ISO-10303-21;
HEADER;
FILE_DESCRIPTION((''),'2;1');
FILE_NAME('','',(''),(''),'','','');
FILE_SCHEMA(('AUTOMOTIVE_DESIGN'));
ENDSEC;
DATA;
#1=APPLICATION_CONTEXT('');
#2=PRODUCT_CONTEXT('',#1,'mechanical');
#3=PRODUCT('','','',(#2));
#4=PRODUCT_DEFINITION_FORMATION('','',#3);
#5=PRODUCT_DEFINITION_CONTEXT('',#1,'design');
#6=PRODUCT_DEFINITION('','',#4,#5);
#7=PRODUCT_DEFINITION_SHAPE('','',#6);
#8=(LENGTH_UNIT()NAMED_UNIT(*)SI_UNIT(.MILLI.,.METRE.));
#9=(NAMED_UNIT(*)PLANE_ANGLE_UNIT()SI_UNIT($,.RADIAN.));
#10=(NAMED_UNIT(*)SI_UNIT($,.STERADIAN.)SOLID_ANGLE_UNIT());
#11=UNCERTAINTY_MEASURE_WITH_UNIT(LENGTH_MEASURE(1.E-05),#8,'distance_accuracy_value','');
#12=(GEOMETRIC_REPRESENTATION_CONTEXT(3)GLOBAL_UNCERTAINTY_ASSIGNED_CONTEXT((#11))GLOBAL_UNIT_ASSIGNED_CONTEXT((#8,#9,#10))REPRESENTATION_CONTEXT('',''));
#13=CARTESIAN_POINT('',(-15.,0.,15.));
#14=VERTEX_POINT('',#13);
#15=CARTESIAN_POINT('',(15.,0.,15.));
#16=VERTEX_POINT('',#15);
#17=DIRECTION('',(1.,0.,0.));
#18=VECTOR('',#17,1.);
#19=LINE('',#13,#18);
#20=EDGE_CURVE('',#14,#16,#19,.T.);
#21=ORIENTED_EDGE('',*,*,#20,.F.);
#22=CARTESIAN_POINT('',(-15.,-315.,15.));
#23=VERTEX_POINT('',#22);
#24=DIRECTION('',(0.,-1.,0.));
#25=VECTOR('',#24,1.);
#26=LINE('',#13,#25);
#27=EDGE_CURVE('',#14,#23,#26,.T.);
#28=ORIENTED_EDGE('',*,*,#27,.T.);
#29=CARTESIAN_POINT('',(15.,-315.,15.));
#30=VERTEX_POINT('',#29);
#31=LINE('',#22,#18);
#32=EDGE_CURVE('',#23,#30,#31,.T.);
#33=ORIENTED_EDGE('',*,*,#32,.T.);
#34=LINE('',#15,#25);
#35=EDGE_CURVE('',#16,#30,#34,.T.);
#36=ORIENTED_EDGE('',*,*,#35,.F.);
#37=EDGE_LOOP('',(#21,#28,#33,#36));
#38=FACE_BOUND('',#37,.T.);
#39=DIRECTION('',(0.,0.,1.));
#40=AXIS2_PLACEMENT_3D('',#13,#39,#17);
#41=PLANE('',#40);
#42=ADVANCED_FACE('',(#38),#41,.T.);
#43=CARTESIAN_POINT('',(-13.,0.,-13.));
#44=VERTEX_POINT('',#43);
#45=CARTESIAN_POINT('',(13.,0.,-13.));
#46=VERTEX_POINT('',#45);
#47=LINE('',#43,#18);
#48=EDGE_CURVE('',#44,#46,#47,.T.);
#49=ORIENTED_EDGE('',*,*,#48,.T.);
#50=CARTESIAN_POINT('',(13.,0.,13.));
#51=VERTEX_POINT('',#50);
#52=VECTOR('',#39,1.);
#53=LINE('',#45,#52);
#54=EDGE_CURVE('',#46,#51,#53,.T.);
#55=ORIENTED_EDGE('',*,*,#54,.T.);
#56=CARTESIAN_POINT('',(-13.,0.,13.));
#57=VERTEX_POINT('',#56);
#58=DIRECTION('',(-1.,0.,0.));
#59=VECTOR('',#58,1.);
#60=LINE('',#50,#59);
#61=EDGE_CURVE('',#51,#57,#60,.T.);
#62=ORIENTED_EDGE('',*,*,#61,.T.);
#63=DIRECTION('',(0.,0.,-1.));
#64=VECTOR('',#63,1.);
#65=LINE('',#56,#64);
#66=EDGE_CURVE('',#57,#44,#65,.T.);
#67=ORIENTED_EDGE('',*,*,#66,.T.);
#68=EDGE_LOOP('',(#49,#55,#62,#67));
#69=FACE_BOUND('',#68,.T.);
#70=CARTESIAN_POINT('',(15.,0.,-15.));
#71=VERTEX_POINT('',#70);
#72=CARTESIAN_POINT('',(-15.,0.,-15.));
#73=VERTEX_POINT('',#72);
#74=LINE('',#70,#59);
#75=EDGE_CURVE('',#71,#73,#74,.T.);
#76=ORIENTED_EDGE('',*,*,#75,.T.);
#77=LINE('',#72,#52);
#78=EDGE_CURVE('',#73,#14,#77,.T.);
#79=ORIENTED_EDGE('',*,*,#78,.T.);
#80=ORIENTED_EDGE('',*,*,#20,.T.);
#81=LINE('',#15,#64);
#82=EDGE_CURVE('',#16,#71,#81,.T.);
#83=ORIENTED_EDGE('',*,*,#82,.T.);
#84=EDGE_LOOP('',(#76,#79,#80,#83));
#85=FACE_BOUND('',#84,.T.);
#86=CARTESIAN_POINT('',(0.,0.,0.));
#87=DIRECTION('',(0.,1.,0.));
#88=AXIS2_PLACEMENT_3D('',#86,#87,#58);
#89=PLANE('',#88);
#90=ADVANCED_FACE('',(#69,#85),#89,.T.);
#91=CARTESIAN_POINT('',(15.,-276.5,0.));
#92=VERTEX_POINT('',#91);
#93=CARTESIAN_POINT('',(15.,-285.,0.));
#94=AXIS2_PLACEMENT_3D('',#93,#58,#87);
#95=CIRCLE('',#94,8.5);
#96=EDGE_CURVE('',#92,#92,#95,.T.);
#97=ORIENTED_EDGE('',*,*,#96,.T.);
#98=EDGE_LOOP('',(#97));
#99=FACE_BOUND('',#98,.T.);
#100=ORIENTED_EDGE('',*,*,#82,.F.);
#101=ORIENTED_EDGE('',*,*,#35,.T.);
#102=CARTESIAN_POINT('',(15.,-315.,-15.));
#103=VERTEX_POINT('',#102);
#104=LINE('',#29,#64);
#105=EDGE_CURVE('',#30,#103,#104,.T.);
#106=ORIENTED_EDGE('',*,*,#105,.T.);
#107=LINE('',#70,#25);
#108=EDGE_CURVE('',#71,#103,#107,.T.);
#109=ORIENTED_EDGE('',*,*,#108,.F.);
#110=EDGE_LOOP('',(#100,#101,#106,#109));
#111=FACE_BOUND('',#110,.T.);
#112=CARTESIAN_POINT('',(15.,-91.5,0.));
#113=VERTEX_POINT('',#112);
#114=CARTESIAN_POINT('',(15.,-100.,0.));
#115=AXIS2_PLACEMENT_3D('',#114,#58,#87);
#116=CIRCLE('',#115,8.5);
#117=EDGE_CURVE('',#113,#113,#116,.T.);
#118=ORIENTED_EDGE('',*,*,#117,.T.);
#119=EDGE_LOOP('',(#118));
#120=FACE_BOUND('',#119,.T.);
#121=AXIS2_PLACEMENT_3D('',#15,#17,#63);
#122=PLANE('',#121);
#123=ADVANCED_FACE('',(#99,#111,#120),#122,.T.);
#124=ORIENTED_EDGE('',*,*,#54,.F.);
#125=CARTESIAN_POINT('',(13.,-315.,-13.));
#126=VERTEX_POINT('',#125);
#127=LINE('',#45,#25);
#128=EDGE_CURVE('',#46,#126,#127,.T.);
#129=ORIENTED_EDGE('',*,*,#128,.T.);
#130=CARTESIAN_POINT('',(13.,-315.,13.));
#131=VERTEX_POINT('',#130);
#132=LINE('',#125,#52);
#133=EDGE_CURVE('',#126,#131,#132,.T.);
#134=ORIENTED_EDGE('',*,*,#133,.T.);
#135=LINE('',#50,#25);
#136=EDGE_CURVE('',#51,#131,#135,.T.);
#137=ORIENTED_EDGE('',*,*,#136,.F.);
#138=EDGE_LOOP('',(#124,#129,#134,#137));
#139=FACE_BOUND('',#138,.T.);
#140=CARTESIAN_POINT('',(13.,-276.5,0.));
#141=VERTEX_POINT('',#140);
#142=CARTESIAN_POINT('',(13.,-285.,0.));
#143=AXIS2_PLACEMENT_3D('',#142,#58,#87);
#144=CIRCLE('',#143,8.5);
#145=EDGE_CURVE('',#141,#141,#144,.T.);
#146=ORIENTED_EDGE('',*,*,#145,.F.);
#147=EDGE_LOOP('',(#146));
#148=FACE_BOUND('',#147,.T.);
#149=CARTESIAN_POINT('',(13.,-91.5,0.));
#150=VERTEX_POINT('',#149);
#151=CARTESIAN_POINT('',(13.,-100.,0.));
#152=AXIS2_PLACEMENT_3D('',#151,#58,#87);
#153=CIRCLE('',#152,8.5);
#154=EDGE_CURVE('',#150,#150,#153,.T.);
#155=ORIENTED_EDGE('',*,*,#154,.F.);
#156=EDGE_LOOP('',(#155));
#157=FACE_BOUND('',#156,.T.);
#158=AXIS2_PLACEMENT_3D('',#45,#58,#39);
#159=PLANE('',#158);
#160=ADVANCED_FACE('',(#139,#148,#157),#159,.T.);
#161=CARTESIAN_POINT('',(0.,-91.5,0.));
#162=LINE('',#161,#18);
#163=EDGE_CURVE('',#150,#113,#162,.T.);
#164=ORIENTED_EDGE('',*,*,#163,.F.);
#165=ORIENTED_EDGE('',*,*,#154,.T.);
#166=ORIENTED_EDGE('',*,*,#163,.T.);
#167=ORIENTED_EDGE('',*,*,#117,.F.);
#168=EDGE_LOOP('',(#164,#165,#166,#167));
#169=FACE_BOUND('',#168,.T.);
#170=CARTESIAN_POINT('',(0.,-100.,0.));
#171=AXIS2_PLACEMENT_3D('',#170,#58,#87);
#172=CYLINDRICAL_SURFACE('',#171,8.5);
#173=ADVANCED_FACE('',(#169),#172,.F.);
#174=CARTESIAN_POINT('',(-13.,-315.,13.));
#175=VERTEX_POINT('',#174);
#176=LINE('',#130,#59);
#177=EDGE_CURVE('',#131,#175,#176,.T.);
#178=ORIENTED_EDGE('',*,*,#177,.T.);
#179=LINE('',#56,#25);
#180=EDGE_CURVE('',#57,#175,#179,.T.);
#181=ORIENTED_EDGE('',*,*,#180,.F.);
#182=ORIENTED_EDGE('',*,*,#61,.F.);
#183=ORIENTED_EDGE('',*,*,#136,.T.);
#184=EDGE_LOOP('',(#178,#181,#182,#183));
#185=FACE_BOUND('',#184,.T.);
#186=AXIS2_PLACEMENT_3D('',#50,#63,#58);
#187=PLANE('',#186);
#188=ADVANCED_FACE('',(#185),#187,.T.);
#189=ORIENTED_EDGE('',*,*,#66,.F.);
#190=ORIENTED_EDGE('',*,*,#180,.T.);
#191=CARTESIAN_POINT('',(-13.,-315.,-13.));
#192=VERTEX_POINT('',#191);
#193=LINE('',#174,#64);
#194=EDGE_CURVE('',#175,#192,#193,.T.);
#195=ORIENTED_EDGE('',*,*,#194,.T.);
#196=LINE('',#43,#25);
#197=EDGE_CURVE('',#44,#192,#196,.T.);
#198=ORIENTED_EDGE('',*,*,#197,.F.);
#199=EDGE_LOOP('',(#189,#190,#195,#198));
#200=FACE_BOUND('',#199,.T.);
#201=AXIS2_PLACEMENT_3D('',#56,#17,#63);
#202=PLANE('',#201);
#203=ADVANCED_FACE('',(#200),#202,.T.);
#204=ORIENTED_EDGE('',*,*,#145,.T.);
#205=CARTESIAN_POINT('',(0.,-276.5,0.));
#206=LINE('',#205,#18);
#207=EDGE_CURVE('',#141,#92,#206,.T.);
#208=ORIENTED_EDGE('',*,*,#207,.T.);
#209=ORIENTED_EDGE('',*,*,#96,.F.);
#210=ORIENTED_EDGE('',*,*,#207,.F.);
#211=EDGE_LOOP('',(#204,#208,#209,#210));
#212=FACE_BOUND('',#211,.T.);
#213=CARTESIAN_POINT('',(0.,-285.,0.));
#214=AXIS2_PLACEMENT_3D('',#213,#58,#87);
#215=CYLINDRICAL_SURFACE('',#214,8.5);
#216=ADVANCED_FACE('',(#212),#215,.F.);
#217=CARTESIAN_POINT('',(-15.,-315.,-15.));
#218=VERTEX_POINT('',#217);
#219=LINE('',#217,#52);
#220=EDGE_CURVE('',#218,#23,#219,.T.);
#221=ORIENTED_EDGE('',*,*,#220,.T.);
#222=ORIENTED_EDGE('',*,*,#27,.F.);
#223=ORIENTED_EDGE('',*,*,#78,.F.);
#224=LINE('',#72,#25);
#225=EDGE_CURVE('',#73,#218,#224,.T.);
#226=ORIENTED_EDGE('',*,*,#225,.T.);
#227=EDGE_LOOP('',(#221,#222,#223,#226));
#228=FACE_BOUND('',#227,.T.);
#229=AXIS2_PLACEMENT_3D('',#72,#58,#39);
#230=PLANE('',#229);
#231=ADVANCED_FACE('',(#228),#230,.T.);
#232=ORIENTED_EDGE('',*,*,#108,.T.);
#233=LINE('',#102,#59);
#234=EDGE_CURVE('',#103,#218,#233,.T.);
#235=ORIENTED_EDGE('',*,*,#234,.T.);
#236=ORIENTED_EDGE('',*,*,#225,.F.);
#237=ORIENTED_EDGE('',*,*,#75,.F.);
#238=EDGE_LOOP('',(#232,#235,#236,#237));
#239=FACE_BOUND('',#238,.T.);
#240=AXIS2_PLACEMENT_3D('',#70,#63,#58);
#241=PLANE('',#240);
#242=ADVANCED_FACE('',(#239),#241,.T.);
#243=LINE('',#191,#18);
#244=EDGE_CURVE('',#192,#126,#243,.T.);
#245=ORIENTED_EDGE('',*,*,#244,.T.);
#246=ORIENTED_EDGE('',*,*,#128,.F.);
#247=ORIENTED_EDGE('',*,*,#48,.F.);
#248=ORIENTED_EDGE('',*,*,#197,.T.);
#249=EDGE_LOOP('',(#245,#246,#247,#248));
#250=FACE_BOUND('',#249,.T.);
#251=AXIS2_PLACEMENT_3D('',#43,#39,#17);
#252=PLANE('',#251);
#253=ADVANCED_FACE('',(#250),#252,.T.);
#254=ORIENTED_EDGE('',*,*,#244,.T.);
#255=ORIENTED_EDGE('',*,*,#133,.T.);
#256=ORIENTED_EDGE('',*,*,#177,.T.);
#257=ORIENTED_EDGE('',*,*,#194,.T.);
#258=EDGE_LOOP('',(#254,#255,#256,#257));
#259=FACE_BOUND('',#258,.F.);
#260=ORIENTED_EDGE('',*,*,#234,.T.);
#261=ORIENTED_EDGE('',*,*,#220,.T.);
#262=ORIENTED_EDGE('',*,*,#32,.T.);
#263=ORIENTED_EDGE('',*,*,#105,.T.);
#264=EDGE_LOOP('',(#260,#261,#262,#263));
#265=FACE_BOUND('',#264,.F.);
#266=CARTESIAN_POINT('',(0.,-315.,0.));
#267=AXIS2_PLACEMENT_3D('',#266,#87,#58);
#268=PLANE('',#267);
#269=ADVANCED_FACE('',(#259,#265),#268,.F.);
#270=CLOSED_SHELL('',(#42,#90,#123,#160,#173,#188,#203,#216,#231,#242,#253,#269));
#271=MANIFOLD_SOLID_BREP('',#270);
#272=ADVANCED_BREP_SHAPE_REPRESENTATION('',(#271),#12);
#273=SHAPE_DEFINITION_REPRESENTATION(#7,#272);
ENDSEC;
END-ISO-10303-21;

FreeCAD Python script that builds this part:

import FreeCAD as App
import Part
import Sketcher
Q = App.Units.Quantity


def add_polygon(sketch, points):
    """Adds a closed chain of lines whose ends are joined by coincident constraints."""
    first, n = sketch.GeometryCount, len(points)
    for a, b in zip(points, points[1:] + points[:1]):
        sketch.addGeometry(Part.LineSegment(App.Vector(*a, 0), App.Vector(*b, 0)), False)
    for i in range(n):
        sketch.addConstraint(Sketcher.Constraint("Coincident", first + i, 2, first + (i + 1) % n, 1))

doc = App.newDocument("Part")
body = doc.addObject("PartDesign::Body", "Body")

sketch1 = body.newObject("Sketcher::SketchObject", "Sketch")
sketch1.AttachmentSupport = (doc.getObject("XZ_Plane"), [""])
sketch1.MapMode = "FlatFace"
add_polygon(sketch1, [(-15, -15), (-15, 15), (15, 15), (15, -15)])
add_polygon(sketch1, [(13, -13), (13, 13), (-13, 13), (-13, -13)])
sketch1.addConstraint([
    Sketcher.Constraint("Vertical", 0),
    Sketcher.Constraint("Horizontal", 1),
    Sketcher.Constraint("Vertical", 2),
    Sketcher.Constraint("Horizontal", 3),
    Sketcher.Constraint("Vertical", 4),
    Sketcher.Constraint("Horizontal", 5),
    Sketcher.Constraint("Vertical", 6),
    Sketcher.Constraint("Horizontal", 7),
    Sketcher.Constraint("Symmetric", 0, 2, 2, 2, -1, 1),
    Sketcher.Constraint("Symmetric", 4, 2, 6, 2, -1, 1),
    Sketcher.Constraint("Equal", 3, 0),
    Sketcher.Constraint("Equal", 7, 4),
    Sketcher.Constraint("DistanceX", 1, 1, 1, 2, Q("30 mm")),
    Sketcher.Constraint("DistanceX", 4, 2, 1, 2, Q("2 mm")),
])
pad1 = body.newObject("PartDesign::Pad", "Pad")
pad1.Profile = sketch1
pad1.Length = 315

sketch2 = body.newObject("Sketcher::SketchObject", "Sketch001")
sketch2.AttachmentSupport = (doc.getObject("YZ_Plane"), [""])
sketch2.MapMode = "FlatFace"
sketch2.addGeometry([
    Part.Circle(App.Vector(-100, 0, 0), App.Vector(0, 0, 1), 8),
    Part.Circle(App.Vector(-285, 0, 0), App.Vector(0, 0, 1), 8),
], False)
sketch2.addConstraint([
    Sketcher.Constraint("Equal", 0, 1),
    Sketcher.Constraint("PointOnObject", 0, 3, -1),
    Sketcher.Constraint("PointOnObject", 1, 3, -1),
    Sketcher.Constraint("Diameter", 0, Q("17 mm")),
    Sketcher.Constraint("DistanceX", 0, 3, -1, 1, Q("100 mm")),
    Sketcher.Constraint("DistanceX", 1, 3, -1, 1, Q("285 mm")),
])
pocket1 = body.newObject("PartDesign::Pocket", "Pocket")
pocket1.Profile = sketch2
pocket1.Type = "ThroughAll"
pocket1.Reversed = True

doc.recompute()
